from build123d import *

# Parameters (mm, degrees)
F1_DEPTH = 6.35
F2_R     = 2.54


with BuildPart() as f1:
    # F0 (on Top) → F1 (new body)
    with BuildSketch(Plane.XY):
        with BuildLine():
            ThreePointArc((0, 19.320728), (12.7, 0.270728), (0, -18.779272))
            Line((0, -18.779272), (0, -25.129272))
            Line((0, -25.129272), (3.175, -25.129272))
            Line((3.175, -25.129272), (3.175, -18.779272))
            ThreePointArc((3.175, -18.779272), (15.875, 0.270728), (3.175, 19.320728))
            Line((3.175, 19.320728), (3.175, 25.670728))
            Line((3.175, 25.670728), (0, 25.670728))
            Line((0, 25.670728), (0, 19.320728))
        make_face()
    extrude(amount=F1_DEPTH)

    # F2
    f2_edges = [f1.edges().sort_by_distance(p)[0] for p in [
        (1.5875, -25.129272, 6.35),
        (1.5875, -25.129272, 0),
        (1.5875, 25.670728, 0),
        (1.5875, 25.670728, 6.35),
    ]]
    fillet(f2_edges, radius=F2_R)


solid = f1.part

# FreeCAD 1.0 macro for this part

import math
import FreeCAD as App
import Part
import Sketcher
Q = App.Units.Quantity


def edges_at(feature, points):
    """Names of the edges that pass closest to the given points."""
    edges = feature.Shape.Edges
    near = lambda p: min(range(len(edges)), key=lambda i: edges[i].distToShape(Part.Vertex(*p))[0])
    return sorted({f"Edge{near(p) + 1}" for p in points})

doc = App.newDocument("Part")
params = doc.addObject("Spreadsheet::Sheet", "Params")
for row, (alias, value) in enumerate([
    ("sketch1_radius", "0.8125 in"),
    ("sketch1_height", "0.25 in"),
    ("sketch1_width", "0.125 in"),
    ("pad1_length", "0.25 in"),
    ("fillet_radius", "0.1 in"),
], start=1):
    params.set(f"A{row}", alias)
    params.set(f"B{row}", "=" + value)
    params.setAlias(f"B{row}", alias)

body = doc.addObject("PartDesign::Body", "Body")

sketch1 = doc.addObject("Sketcher::SketchObject", "Sketch")
body.addObject(sketch1)
sketch1.AttachmentSupport = (doc.XY_Plane, [""])
sketch1.MapMode = "FlatFace"
sketch1.addGeometry([
    Part.ArcOfCircle(Part.Circle(App.Vector(-7.9, 0.3, 0), App.Vector(0, 0, 1), 20.6), math.radians(-67), math.radians(67)),
    Part.LineSegment(App.Vector(0, -18.8, 0), App.Vector(0, -25.1, 0)),
    Part.LineSegment(App.Vector(0, -25.1, 0), App.Vector(3.2, -25.1, 0)),
    Part.LineSegment(App.Vector(3.2, -25.1, 0), App.Vector(3.2, -18.8, 0)),
    Part.ArcOfCircle(Part.Circle(App.Vector(-4.8, 0.3, 0), App.Vector(0, 0, 1), 20.6), math.radians(-67), math.radians(67)),
    Part.LineSegment(App.Vector(3.2, 19.3, 0), App.Vector(3.2, 25.7, 0)),
    Part.LineSegment(App.Vector(3.2, 25.7, 0), App.Vector(0, 25.7, 0)),
    Part.LineSegment(App.Vector(0, 25.7, 0), App.Vector(0, 19.3, 0)),
], False)
sketch1.addConstraint([
    Sketcher.Constraint("Coincident", 0, 1, 1, 1),
    Sketcher.Constraint("Coincident", 1, 2, 2, 1),
    Sketcher.Constraint("Coincident", 2, 2, 3, 1),
    Sketcher.Constraint("Coincident", 3, 2, 4, 1),
    Sketcher.Constraint("Coincident", 4, 2, 5, 1),
    Sketcher.Constraint("Coincident", 5, 2, 6, 1),
    Sketcher.Constraint("Coincident", 6, 2, 7, 1),
    Sketcher.Constraint("Coincident", 7, 2, 0, 2),
    Sketcher.Constraint("Vertical", 1),
    Sketcher.Constraint("Horizontal", 2),
    Sketcher.Constraint("Vertical", 3),
    Sketcher.Constraint("Vertical", 5),
    Sketcher.Constraint("Horizontal", 6),
    Sketcher.Constraint("Vertical", 7),
    Sketcher.Constraint("Equal", 0, 4),
    Sketcher.Constraint("PointOnObject", 0, 1, -2),
    Sketcher.Constraint("PointOnObject", 6, 2, -2),
    Sketcher.Constraint("Horizontal", 0, 3, 4, 3),
    Sketcher.Constraint("Horizontal", 0, 1, 3, 2),
    Sketcher.Constraint("Horizontal", 4, 2, 7, 2),
    Sketcher.Constraint("Equal", 3, 5),
    Sketcher.Constraint("Radius", 0, Q("0.8125 in")),
    Sketcher.Constraint("DistanceY", 1, 2, 4, 3, Q("1 in")),
    Sketcher.Constraint("DistanceY", 1, 2, 1, 1, Q("0.25 in")),
    Sketcher.Constraint("DistanceX", 2, 1, 2, 2, Q("0.125 in")),
    Sketcher.Constraint("DistanceY", 0, 1, -1, 1, 18.779272),
])
sketch1.setExpression("Constraints[21]", "Params.sketch1_radius")
sketch1.setExpression("Constraints[23]", "Params.sketch1_height")
sketch1.setExpression("Constraints[24]", "Params.sketch1_width")
pad1 = doc.addObject("PartDesign::Pad", "Pad")
body.addObject(pad1)
pad1.Profile = sketch1
pad1.setExpression("Length", "Params.pad1_length")
doc.recompute()

fillet = doc.addObject("PartDesign::Fillet", "Fillet")
body.addObject(fillet)
fillet.Base = (pad1, edges_at(pad1, [
    (1.587, -25.129, 6.35),
    (1.587, -25.129, 0),
    (1.587, 25.671, 0),
    (1.587, 25.671, 6.35),
]))
fillet.setExpression("Radius", "Params.fillet_radius")

doc.recompute()
